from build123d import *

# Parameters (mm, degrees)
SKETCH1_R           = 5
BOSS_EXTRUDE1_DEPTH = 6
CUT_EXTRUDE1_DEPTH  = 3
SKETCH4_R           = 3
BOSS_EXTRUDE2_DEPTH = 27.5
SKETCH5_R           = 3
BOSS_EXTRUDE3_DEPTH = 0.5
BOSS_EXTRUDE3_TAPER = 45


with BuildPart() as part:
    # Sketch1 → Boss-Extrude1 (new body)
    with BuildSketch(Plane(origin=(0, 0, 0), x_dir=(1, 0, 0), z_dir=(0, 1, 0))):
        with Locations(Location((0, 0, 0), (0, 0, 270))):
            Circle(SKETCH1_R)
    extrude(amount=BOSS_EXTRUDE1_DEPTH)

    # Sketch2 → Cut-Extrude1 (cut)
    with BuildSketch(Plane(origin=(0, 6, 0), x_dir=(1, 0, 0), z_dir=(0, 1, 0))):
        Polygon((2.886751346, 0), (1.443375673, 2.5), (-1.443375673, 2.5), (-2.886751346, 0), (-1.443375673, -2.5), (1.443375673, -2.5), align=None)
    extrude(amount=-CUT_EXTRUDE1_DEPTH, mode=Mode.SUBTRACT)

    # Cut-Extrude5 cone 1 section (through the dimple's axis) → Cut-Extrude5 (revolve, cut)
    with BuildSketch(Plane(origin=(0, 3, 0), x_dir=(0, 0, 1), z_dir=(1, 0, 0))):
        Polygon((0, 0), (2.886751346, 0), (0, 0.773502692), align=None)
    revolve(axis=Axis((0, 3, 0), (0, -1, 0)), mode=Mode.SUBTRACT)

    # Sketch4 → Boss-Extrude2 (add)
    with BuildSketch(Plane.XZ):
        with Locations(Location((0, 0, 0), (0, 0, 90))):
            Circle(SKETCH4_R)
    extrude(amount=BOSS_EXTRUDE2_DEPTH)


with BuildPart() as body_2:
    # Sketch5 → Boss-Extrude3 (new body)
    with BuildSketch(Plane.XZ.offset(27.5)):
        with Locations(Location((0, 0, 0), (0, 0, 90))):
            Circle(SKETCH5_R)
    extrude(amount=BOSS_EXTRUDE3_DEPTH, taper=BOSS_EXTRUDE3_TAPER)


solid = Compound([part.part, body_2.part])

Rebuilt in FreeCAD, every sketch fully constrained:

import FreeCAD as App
import Part
import Sketcher

V = App.Vector
Q = App.Units.Quantity

doc = App.newDocument("Part")
body = doc.addObject("PartDesign::Body", "Body")

sketch1 = doc.addObject("Sketcher::SketchObject", "Sketch")
body.addObject(sketch1)
sketch1.AttachmentSupport = (doc.XZ_Plane, [""])
sketch1.MapMode = "FlatFace"
sketch1.addGeometry(Part.Circle(V(0, 0, 0), V(0, 0, 1), 5), False)
sketch1.addConstraint([
    Sketcher.Constraint("Coincident", 0, 3, -1, 1),
    Sketcher.Constraint("Diameter", 0, Q("10 mm")),
])
pad1 = doc.addObject("PartDesign::Pad", "Pad")
body.addObject(pad1)
pad1.Profile = sketch1
pad1.Length = 6
pad1.Reversed = True

sketch2 = doc.addObject("Sketcher::SketchObject", "Sketch001")
body.addObject(sketch2)
sketch2.AttachmentSupport = (doc.XZ_Plane, [""])
sketch2.MapMode = "FlatFace"
sketch2.AttachmentOffset = App.Placement(V(0, 0, -6), App.Rotation())
sketch2.addGeometry([
    Part.LineSegment(V(2.9, 0, 0), V(1.4, -2.5, 0)),
    Part.LineSegment(V(1.4, -2.5, 0), V(-1.4, -2.5, 0)),
    Part.LineSegment(V(-1.4, -2.5, 0), V(-2.9, 0, 0)),
    Part.LineSegment(V(-2.9, 0, 0), V(-1.4, 2.5, 0)),
    Part.LineSegment(V(-1.4, 2.5, 0), V(1.4, 2.5, 0)),
    Part.LineSegment(V(1.4, 2.5, 0), V(2.9, 0, 0)),
], False)
sketch2.addConstraint([
    Sketcher.Constraint("Coincident", 0, 2, 1, 1),
    Sketcher.Constraint("Coincident", 1, 2, 2, 1),
    Sketcher.Constraint("Coincident", 2, 2, 3, 1),
    Sketcher.Constraint("Coincident", 3, 2, 4, 1),
    Sketcher.Constraint("Coincident", 4, 2, 5, 1),
    Sketcher.Constraint("Coincident", 5, 2, 0, 1),
    Sketcher.Constraint("Horizontal", 1),
    Sketcher.Constraint("Horizontal", 4),
    Sketcher.Constraint("Symmetric", 0, 2, 3, 2, -1, 1),
    Sketcher.Constraint("Symmetric", 2, 2, 5, 2, -1, 1),
    Sketcher.Constraint("PointOnObject", 2, 2, -1),
    Sketcher.Constraint("Parallel", 2, 5),
    Sketcher.Constraint("Vertical", 1, 2, 3, 2),
    Sketcher.Constraint("Angle", 0, Q("-120 deg")),
    Sketcher.Constraint("DistanceY", 1, 2, 3, 2, Q("5 mm")),
    Sketcher.Constraint("DistanceX", 1, 2, 1, 1, Q("2.886751 mm")),
])
pocket1 = doc.addObject("PartDesign::Pocket", "Pocket")
body.addObject(pocket1)
pocket1.Profile = sketch2
pocket1.Length = 3
pocket1.Reversed = True

sketch3 = doc.addObject("Sketcher::SketchObject", "Sketch002")
body.addObject(sketch3)
sketch3.AttachmentSupport = (doc.YZ_Plane, [""])
sketch3.MapMode = "FlatFace"
sketch3.addGeometry([
    Part.LineSegment(V(3, 0, 0), V(3, 2.9, 0)),
    Part.LineSegment(V(3, 2.9, 0), V(2.2, 0, 0)),
    Part.LineSegment(V(2.2, 0, 0), V(3, 0, 0)),
], False)
sketch3.addConstraint([
    Sketcher.Constraint("Coincident", 0, 2, 1, 1),
    Sketcher.Constraint("Coincident", 1, 2, 2, 1),
    Sketcher.Constraint("Coincident", 2, 2, 0, 1),
    Sketcher.Constraint("Vertical", 0),
    Sketcher.Constraint("Horizontal", 2),
    Sketcher.Constraint("PointOnObject", 1, 2, -1),
    Sketcher.Constraint("Angle", 1, Q("-105 deg")),
    Sketcher.Constraint("DistanceX", -1, 1, 0, 2, Q("3 mm")),
    Sketcher.Constraint("DistanceY", 0, 1, 0, 2, Q("2.886751 mm")),
])
groove = doc.addObject("PartDesign::Groove", "Groove")
body.addObject(groove)
groove.Profile = sketch3
groove.ReferenceAxis = (sketch3, ["H_Axis"])
groove.Angle = 360

sketch4 = doc.addObject("Sketcher::SketchObject", "Sketch003")
body.addObject(sketch4)
sketch4.AttachmentSupport = (doc.XZ_Plane, [""])
sketch4.MapMode = "FlatFace"
sketch4.addGeometry(Part.Circle(V(0, 0, 0), V(0, 0, 1), 3), False)
sketch4.addConstraint([
    Sketcher.Constraint("Coincident", 0, 3, -1, 1),
    Sketcher.Constraint("Diameter", 0, Q("6 mm")),
])
pad2 = doc.addObject("PartDesign::Pad", "Pad001")
body.addObject(pad2)
pad2.Profile = sketch4
pad2.Length = 27.5
body2 = doc.addObject("PartDesign::Body", "Body001")

sketch5 = doc.addObject("Sketcher::SketchObject", "Sketch004")
body2.addObject(sketch5)
sketch5.AttachmentSupport = (doc.getObject("XZ_Plane001"), [""])
sketch5.MapMode = "FlatFace"
sketch5.AttachmentOffset = App.Placement(V(0, 0, 27.5), App.Rotation())
sketch5.addGeometry(Part.Circle(V(0, 0, 0), V(0, 0, 1), 3), False)
sketch5.addConstraint([
    Sketcher.Constraint("Coincident", 0, 3, -1, 1),
    Sketcher.Constraint("Diameter", 0, Q("6 mm")),
])
pad3 = doc.addObject("PartDesign::Pad", "Pad002")
body2.addObject(pad3)
pad3.Profile = sketch5
pad3.Length = 0.5
pad3.TaperAngle = -45

doc.recompute()
